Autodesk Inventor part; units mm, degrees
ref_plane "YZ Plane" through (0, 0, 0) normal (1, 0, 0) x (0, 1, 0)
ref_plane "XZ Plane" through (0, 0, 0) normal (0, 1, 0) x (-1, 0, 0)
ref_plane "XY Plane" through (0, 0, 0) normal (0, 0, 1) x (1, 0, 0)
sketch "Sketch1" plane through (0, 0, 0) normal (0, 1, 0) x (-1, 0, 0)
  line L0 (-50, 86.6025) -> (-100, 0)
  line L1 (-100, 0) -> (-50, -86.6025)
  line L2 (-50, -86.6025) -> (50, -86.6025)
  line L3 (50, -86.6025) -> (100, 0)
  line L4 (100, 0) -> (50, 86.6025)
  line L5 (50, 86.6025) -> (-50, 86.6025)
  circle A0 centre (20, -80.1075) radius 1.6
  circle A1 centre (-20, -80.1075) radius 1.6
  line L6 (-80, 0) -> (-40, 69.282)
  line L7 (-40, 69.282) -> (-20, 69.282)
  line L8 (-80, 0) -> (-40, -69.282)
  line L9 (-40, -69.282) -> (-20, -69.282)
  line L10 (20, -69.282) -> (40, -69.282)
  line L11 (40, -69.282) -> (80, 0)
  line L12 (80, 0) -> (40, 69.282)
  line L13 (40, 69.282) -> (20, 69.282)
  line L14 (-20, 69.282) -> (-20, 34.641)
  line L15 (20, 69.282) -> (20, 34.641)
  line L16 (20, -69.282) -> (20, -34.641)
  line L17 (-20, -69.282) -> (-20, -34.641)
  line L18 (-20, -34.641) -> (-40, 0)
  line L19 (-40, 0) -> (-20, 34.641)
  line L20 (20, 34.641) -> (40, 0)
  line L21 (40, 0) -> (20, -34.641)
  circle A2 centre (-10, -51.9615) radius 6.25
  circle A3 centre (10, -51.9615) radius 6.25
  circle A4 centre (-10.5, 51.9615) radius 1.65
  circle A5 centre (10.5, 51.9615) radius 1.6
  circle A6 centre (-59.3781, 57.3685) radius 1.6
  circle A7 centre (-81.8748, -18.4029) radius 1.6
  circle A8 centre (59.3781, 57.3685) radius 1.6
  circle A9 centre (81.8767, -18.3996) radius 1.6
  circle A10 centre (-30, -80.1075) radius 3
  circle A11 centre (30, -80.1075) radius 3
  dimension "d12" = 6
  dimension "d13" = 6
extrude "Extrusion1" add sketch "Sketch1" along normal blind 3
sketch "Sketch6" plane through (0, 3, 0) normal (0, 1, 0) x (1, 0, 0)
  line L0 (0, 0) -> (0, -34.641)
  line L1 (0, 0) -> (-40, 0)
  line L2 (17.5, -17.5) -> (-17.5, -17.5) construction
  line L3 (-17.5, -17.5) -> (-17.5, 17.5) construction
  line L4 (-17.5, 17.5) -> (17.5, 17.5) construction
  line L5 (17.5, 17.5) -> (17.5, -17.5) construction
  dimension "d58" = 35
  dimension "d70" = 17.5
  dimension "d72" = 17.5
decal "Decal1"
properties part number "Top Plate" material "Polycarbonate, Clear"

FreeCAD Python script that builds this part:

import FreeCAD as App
import Part
import Sketcher

V = App.Vector
Q = App.Units.Quantity

doc = App.newDocument("Part")
body = doc.addObject("PartDesign::Body", "Body")

# Sketch on XZ plane
sketch1 = body.newObject("Sketcher::SketchObject", "Sketch")
sketch1.AttachmentSupport = (doc.getObject("XZ_Plane"), [""])
sketch1.MapMode = "FlatFace"
sketch1.addGeometry(Part.LineSegment(V(-50, 86.6, 0), V(50, 86.6, 0)), False)
sketch1.addGeometry(Part.LineSegment(V(50, 86.6, 0), V(100, 0, 0)), False)
sketch1.addGeometry(Part.LineSegment(V(100, 0, 0), V(50, -86.6, 0)), False)
sketch1.addGeometry(Part.LineSegment(V(50, -86.6, 0), V(-50, -86.6, 0)), False)
sketch1.addGeometry(Part.LineSegment(V(-50, -86.6, 0), V(-100, 0, 0)), False)
sketch1.addGeometry(Part.LineSegment(V(-100, 0, 0), V(-50, 86.6, 0)), False)
sketch1.addGeometry(Part.Circle(V(30, -80.1, 0), V(0, 0, 1), 3), False)
sketch1.addGeometry(Part.Circle(V(20, -80.1, 0), V(0, 0, 1), 1.6), False)
sketch1.addGeometry(Part.Circle(V(10, -52, 0), V(0, 0, 1), 6.2), False)
sketch1.addGeometry(Part.Circle(V(81.9, -18.4, 0), V(0, 0, 1), 1.6), False)
sketch1.addGeometry(Part.Circle(V(-20, -80.1, 0), V(0, 0, 1), 1.6), False)
sketch1.addGeometry(Part.Circle(V(-30, -80.1, 0), V(0, 0, 1), 3), False)
sketch1.addGeometry(Part.Circle(V(-10, -52, 0), V(0, 0, 1), 6.2), False)
sketch1.addGeometry(Part.Circle(V(-81.9, -18.4, 0), V(0, 0, 1), 1.6), False)
sketch1.addGeometry(Part.LineSegment(V(40, -69.3, 0), V(80, 0, 0)), False)
sketch1.addGeometry(Part.LineSegment(V(80, 0, 0), V(40, 69.3, 0)), False)
sketch1.addGeometry(Part.LineSegment(V(40, 69.3, 0), V(20, 69.3, 0)), False)
sketch1.addGeometry(Part.LineSegment(V(20, 69.3, 0), V(20, 34.6, 0)), False)
sketch1.addGeometry(Part.LineSegment(V(20, 34.6, 0), V(40, 0, 0)), False)
sketch1.addGeometry(Part.LineSegment(V(40, 0, 0), V(20, -34.6, 0)), False)
sketch1.addGeometry(Part.LineSegment(V(20, -34.6, 0), V(20, -69.3, 0)), False)
sketch1.addGeometry(Part.LineSegment(V(20, -69.3, 0), V(40, -69.3, 0)), False)
sketch1.addGeometry(Part.Circle(V(59.4, 57.4, 0), V(0, 0, 1), 1.6), False)
sketch1.addGeometry(Part.Circle(V(10.5, 52, 0), V(0, 0, 1), 1.6), False)
sketch1.addGeometry(Part.LineSegment(V(-40, -69.3, 0), V(-20, -69.3, 0)), False)
sketch1.addGeometry(Part.LineSegment(V(-20, -69.3, 0), V(-20, -34.6, 0)), False)
sketch1.addGeometry(Part.LineSegment(V(-20, -34.6, 0), V(-40, 0, 0)), False)
sketch1.addGeometry(Part.LineSegment(V(-40, 0, 0), V(-20, 34.6, 0)), False)
sketch1.addGeometry(Part.LineSegment(V(-20, 34.6, 0), V(-20, 69.3, 0)), False)
sketch1.addGeometry(Part.LineSegment(V(-20, 69.3, 0), V(-40, 69.3, 0)), False)
sketch1.addGeometry(Part.LineSegment(V(-40, 69.3, 0), V(-80, 0, 0)), False)
sketch1.addGeometry(Part.LineSegment(V(-80, 0, 0), V(-40, -69.3, 0)), False)
sketch1.addGeometry(Part.Circle(V(-10.5, 52, 0), V(0, 0, 1), 1.6), False)
sketch1.addGeometry(Part.Circle(V(-59.4, 57.4, 0), V(0, 0, 1), 1.6), False)
sketch1.addConstraint(Sketcher.Constraint("Coincident", 0, 2, 1, 1))
sketch1.addConstraint(Sketcher.Constraint("Coincident", 1, 2, 2, 1))
sketch1.addConstraint(Sketcher.Constraint("Coincident", 2, 2, 3, 1))
sketch1.addConstraint(Sketcher.Constraint("Coincident", 3, 2, 4, 1))
sketch1.addConstraint(Sketcher.Constraint("Coincident", 4, 2, 5, 1))
sketch1.addConstraint(Sketcher.Constraint("Coincident", 5, 2, 0, 1))
sketch1.addConstraint(Sketcher.Constraint("Coincident", 14, 2, 15, 1))
sketch1.addConstraint(Sketcher.Constraint("Coincident", 15, 2, 16, 1))
sketch1.addConstraint(Sketcher.Constraint("Coincident", 16, 2, 17, 1))
sketch1.addConstraint(Sketcher.Constraint("Coincident", 17, 2, 18, 1))
sketch1.addConstraint(Sketcher.Constraint("Coincident", 18, 2, 19, 1))
sketch1.addConstraint(Sketcher.Constraint("Coincident", 19, 2, 20, 1))
sketch1.addConstraint(Sketcher.Constraint("Coincident", 20, 2, 21, 1))
sketch1.addConstraint(Sketcher.Constraint("Coincident", 21, 2, 14, 1))
sketch1.addConstraint(Sketcher.Constraint("Coincident", 24, 2, 25, 1))
sketch1.addConstraint(Sketcher.Constraint("Coincident", 25, 2, 26, 1))
sketch1.addConstraint(Sketcher.Constraint("Coincident", 26, 2, 27, 1))
sketch1.addConstraint(Sketcher.Constraint("Coincident", 27, 2, 28, 1))
sketch1.addConstraint(Sketcher.Constraint("Coincident", 28, 2, 29, 1))
sketch1.addConstraint(Sketcher.Constraint("Coincident", 29, 2, 30, 1))
sketch1.addConstraint(Sketcher.Constraint("Coincident", 30, 2, 31, 1))
sketch1.addConstraint(Sketcher.Constraint("Coincident", 31, 2, 24, 1))
sketch1.addConstraint(Sketcher.Constraint("Horizontal", 0))
sketch1.addConstraint(Sketcher.Constraint("Horizontal", 3))
sketch1.addConstraint(Sketcher.Constraint("Horizontal", 16))
sketch1.addConstraint(Sketcher.Constraint("Vertical", 17))
sketch1.addConstraint(Sketcher.Constraint("Vertical", 20))
sketch1.addConstraint(Sketcher.Constraint("Horizontal", 21))
sketch1.addConstraint(Sketcher.Constraint("Horizontal", 24))
sketch1.addConstraint(Sketcher.Constraint("Vertical", 25))
sketch1.addConstraint(Sketcher.Constraint("Vertical", 28))
sketch1.addConstraint(Sketcher.Constraint("Horizontal", 29))
sketch1.addConstraint(Sketcher.Constraint("Equal", 7, 9))
sketch1.addConstraint(Sketcher.Constraint("Equal", 9, 10))
sketch1.addConstraint(Sketcher.Constraint("Equal", 6, 11))
sketch1.addConstraint(Sketcher.Constraint("Equal", 8, 12))
sketch1.addConstraint(Sketcher.Constraint("Equal", 10, 13))
sketch1.addConstraint(Sketcher.Constraint("Equal", 13, 22))
sketch1.addConstraint(Sketcher.Constraint("Equal", 22, 32))
sketch1.addConstraint(Sketcher.Constraint("Equal", 32, 33))
sketch1.addConstraint(Sketcher.Constraint("Symmetric", 0, 2, 3, 2, -1, 1))
sketch1.addConstraint(Sketcher.Constraint("Symmetric", 1, 2, 4, 2, -1, 1))
sketch1.addConstraint(Sketcher.Constraint("Symmetric", 16, 2, 24, 2, -1, 1))
sketch1.addConstraint(Sketcher.Constraint("Symmetric", 18, 2, 26, 2, -1, 1))
sketch1.addConstraint(Sketcher.Constraint("Symmetric", 19, 2, 27, 2, -1, 1))
sketch1.addConstraint(Sketcher.Constraint("Symmetric", 21, 2, 29, 2, -1, 1))
sketch1.addConstraint(Sketcher.Constraint("Symmetric", 14, 2, 30, 2, -1, 1))
sketch1.addConstraint(Sketcher.Constraint("Symmetric", 7, 3, 10, 3, -2))
sketch1.addConstraint(Sketcher.Constraint("Symmetric", 6, 3, 11, 3, -2))
sketch1.addConstraint(Sketcher.Constraint("Symmetric", 8, 3, 12, 3, -2))
sketch1.addConstraint(Sketcher.Constraint("Symmetric", 23, 3, 32, 3, -2))
sketch1.addConstraint(Sketcher.Constraint("Symmetric", 22, 3, 33, 3, -2))
sketch1.addConstraint(Sketcher.Constraint("Symmetric", 20, 2, 24, 2, -2))
sketch1.addConstraint(Sketcher.Constraint("PointOnObject", 1, 2, -1))
sketch1.addConstraint(Sketcher.Constraint("PointOnObject", 14, 2, -1))
sketch1.addConstraint(Sketcher.Constraint("PointOnObject", 18, 2, -1))
sketch1.addConstraint(Sketcher.Constraint("Parallel", 2, 5))
sketch1.addConstraint(Sketcher.Constraint("Parallel", 5, 14))
sketch1.addConstraint(Sketcher.Constraint("Parallel", 4, 15))
sketch1.addConstraint(Sketcher.Constraint("Parallel", 15, 18))
sketch1.addConstraint(Sketcher.Constraint("Parallel", 14, 19))
sketch1.addConstraint(Sketcher.Constraint("Parallel", 18, 26))
sketch1.addConstraint(Sketcher.Constraint("Parallel", 26, 31))
sketch1.addConstraint(Sketcher.Constraint("Horizontal", 6, 3, 7, 3))
sketch1.addConstraint(Sketcher.Constraint("Horizontal", 19, 2, 25, 2))
sketch1.addConstraint(Sketcher.Constraint("Vertical", 7, 3, 16, 2))
sketch1.addConstraint(Sketcher.Constraint("Vertical", 15, 2, 18, 2))
sketch1.addConstraint(Sketcher.Constraint("Diameter", 6, Q("6 mm")))
sketch1.addConstraint(Sketcher.Constraint("Diameter", 7, Q("3.2 mm")))
sketch1.addConstraint(Sketcher.Constraint("Diameter", 8, Q("12.5 mm")))
sketch1.addConstraint(Sketcher.Constraint("Diameter", 23, Q("3.3 mm")))
sketch1.addConstraint(Sketcher.Constraint("DistanceX", 0, 1, 0, 2, Q("100 mm")))
sketch1.addConstraint(Sketcher.Constraint("DistanceX", 16, 2, 16, 1, Q("20 mm")))
sketch1.addConstraint(Sketcher.Constraint("Angle", 1, Q("-60 deg")))
sketch1.addConstraint(Sketcher.Constraint("Distance", 1, Q("100 mm")))
sketch1.addConstraint(Sketcher.Constraint("Distance", 14, Q("80 mm")))
sketch1.addConstraint(Sketcher.Constraint("DistanceX", -1, 1, 6, 3, Q("30 mm")))
sketch1.addConstraint(Sketcher.Constraint("DistanceX", -1, 1, 7, 3, Q("20 mm")))
sketch1.addConstraint(Sketcher.Constraint("DistanceX", -1, 1, 8, 3, Q("10 mm")))
sketch1.addConstraint(Sketcher.Constraint("DistanceX", 32, 3, 23, 3, Q("21 mm")))
sketch1.addConstraint(Sketcher.Constraint("DistanceY", 8, 3, 22, 3, Q("109.33 mm")))
sketch1.addConstraint(Sketcher.Constraint("DistanceY", 9, 3, -1, 1, Q("18.403 mm")))
sketch1.addConstraint(Sketcher.Constraint("DistanceX", -1, 1, 22, 3, Q("59.378 mm")))
sketch1.addConstraint(Sketcher.Constraint("DistanceY", 7, 3, 8, 3, Q("28.146 mm")))
sketch1.addConstraint(Sketcher.Constraint("DistanceY", 12, 3, 13, 3, Q("33.562 mm")))
sketch1.addConstraint(Sketcher.Constraint("DistanceY", 23, 3, 22, 3, Q("5.407 mm")))
sketch1.addConstraint(Sketcher.Constraint("DistanceY", 22, 3, 0, 2, Q("29.234 mm")))
sketch1.addConstraint(Sketcher.Constraint("DistanceX", -1, 1, 9, 3, Q("81.8748 mm")))
sketch1.addConstraint(Sketcher.Constraint("DistanceX", 13, 3, -1, 1, Q("81.8767 mm")))
pad1 = body.newObject("PartDesign::Pad", "Pad")
pad1.Profile = sketch1
pad1.Length = 3
pad1.Reversed = True

doc.recompute()
